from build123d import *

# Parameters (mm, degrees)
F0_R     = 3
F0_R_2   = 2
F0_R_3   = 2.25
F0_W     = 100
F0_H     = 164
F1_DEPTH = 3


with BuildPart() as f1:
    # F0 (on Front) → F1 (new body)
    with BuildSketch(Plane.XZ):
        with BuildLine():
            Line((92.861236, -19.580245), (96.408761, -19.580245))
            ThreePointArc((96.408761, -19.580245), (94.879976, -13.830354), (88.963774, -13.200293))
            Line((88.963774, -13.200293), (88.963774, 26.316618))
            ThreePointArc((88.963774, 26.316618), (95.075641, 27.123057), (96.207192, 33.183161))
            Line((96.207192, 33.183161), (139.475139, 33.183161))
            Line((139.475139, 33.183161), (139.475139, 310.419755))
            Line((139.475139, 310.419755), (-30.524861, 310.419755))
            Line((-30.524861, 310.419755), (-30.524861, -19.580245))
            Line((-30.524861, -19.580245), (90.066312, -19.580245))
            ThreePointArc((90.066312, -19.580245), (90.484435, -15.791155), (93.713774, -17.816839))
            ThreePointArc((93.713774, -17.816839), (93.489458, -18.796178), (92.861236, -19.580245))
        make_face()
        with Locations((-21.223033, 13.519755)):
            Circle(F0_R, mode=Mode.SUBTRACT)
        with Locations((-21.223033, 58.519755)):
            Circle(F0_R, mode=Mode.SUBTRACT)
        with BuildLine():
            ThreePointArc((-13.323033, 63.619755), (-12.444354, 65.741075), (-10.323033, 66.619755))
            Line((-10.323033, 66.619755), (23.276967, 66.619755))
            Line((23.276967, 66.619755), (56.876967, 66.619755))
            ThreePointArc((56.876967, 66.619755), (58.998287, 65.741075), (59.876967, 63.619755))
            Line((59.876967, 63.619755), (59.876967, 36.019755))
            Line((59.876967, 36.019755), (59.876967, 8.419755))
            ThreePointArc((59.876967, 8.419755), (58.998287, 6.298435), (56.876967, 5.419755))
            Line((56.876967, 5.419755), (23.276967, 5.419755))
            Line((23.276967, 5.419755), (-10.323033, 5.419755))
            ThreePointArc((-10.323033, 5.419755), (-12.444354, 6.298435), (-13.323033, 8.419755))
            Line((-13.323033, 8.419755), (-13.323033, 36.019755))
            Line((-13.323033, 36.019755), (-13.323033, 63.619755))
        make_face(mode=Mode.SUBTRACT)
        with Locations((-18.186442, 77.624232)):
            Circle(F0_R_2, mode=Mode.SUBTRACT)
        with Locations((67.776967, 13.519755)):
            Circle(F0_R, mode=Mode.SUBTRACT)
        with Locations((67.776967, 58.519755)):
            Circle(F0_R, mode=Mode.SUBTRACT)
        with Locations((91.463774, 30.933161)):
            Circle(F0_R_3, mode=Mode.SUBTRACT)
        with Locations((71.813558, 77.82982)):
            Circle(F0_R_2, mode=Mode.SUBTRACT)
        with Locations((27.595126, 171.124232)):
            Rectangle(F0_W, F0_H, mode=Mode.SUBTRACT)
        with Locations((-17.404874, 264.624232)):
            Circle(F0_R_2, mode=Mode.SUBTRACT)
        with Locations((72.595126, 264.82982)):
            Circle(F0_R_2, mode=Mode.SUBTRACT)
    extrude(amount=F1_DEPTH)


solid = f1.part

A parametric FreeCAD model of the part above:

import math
import FreeCAD as App
import Part
import Sketcher

V = App.Vector
Q = App.Units.Quantity

doc = App.newDocument("Part")
body = doc.addObject("PartDesign::Body", "Body")

sketch1 = body.newObject("Sketcher::SketchObject", "Sketch")
sketch1.AttachmentSupport = (doc.getObject("XZ_Plane"), [""])
sketch1.MapMode = "FlatFace"
sketch1.addGeometry([
    Part.LineSegment(V(92.9, -19.6, 0), V(96.4, -19.6, 0)),
    Part.ArcOfCircle(Part.Circle(V(91.5, -17.8, 0), V(0, 0, 1), 5.2), math.radians(-20), math.radians(118)),
    Part.LineSegment(V(89, -13.2, 0), V(89, 26.3, 0)),
    Part.ArcOfCircle(Part.Circle(V(91.5, 30.9, 0), V(0, 0, 1), 5.2), math.radians(-118), math.radians(25)),
    Part.LineSegment(V(96.2, 33.2, 0), V(139.5, 33.2, 0)),
    Part.LineSegment(V(139.5, 33.2, 0), V(139.5, 310.4, 0)),
    Part.LineSegment(V(139.5, 310.4, 0), V(-30.5, 310.4, 0)),
    Part.LineSegment(V(-30.5, 310.4, 0), V(-30.5, -19.6, 0)),
    Part.LineSegment(V(-30.5, -19.6, 0), V(90.1, -19.6, 0)),
    Part.ArcOfCircle(Part.Circle(V(91.5, -17.8, 0), V(0, 0, 1), 2.3), math.radians(0), math.radians(232)),
    Part.ArcOfCircle(Part.Circle(V(91.5, -17.8, 0), V(0, 0, 1), 2.2), math.radians(-52), math.radians(0)),
    Part.Circle(V(-21.2, 13.5, 0), V(0, 0, 1), 3),
    Part.Circle(V(-21.2, 58.5, 0), V(0, 0, 1), 3),
    Part.LineSegment(V(-13.3, 8.4, 0), V(-13.3, 63.6, 0)),
    Part.ArcOfCircle(Part.Circle(V(-10.3, 63.6, 0), V(0, 0, 1), 3), math.radians(90), math.radians(180)),
    Part.LineSegment(V(-10.3, 66.6, 0), V(56.9, 66.6, 0)),
    Part.ArcOfCircle(Part.Circle(V(56.9, 63.6, 0), V(0, 0, 1), 3), math.radians(0), math.radians(90)),
    Part.LineSegment(V(59.9, 63.6, 0), V(59.9, 8.4, 0)),
    Part.ArcOfCircle(Part.Circle(V(56.9, 8.4, 0), V(0, 0, 1), 3), math.radians(-90), math.radians(0)),
    Part.LineSegment(V(56.9, 5.4, 0), V(-10.3, 5.4, 0)),
    Part.ArcOfCircle(Part.Circle(V(-10.3, 8.4, 0), V(0, 0, 1), 3), math.radians(180), math.radians(270)),
    Part.Circle(V(-18.2, 77.6, 0), V(0, 0, 1), 2),
    Part.Circle(V(67.8, 13.5, 0), V(0, 0, 1), 3),
    Part.Circle(V(91.5, 30.9, 0), V(0, 0, 1), 2.2),
    Part.Circle(V(67.8, 58.5, 0), V(0, 0, 1), 3),
    Part.Circle(V(71.8, 77.8, 0), V(0, 0, 1), 2),
    Part.LineSegment(V(77.6, 89.1, 0), V(-22.4, 89.1, 0)),
    Part.LineSegment(V(-22.4, 89.1, 0), V(-22.4, 253.1, 0)),
    Part.LineSegment(V(-22.4, 253.1, 0), V(77.6, 253.1, 0)),
    Part.LineSegment(V(77.6, 253.1, 0), V(77.6, 89.1, 0)),
    Part.Circle(V(-17.4, 264.6, 0), V(0, 0, 1), 2),
    Part.Circle(V(72.6, 264.8, 0), V(0, 0, 1), 2),
], False)
sketch1.addConstraint([
    Sketcher.Constraint("Coincident", 0, 2, 1, 1),
    Sketcher.Constraint("Coincident", 1, 2, 2, 1),
    Sketcher.Constraint("Coincident", 2, 2, 3, 1),
    Sketcher.Constraint("Coincident", 3, 2, 4, 1),
    Sketcher.Constraint("Coincident", 4, 2, 5, 1),
    Sketcher.Constraint("Coincident", 5, 2, 6, 1),
    Sketcher.Constraint("Coincident", 6, 2, 7, 1),
    Sketcher.Constraint("Coincident", 7, 2, 8, 1),
    Sketcher.Constraint("Coincident", 8, 2, 9, 2),
    Sketcher.Constraint("Tangent", 9, 1, 10, 2),
    Sketcher.Constraint("Coincident", 10, 1, 0, 1),
    Sketcher.Constraint("Tangent", 13, 2, 14, 2),
    Sketcher.Constraint("Tangent", 14, 1, 15, 1),
    Sketcher.Constraint("Tangent", 15, 2, 16, 2),
    Sketcher.Constraint("Tangent", 16, 1, 17, 1),
    Sketcher.Constraint("Tangent", 17, 2, 18, 2),
    Sketcher.Constraint("Tangent", 18, 1, 19, 1),
    Sketcher.Constraint("Tangent", 19, 2, 20, 2),
    Sketcher.Constraint("Tangent", 20, 1, 13, 1),
    Sketcher.Constraint("Coincident", 26, 2, 27, 1),
    Sketcher.Constraint("Coincident", 27, 2, 28, 1),
    Sketcher.Constraint("Coincident", 28, 2, 29, 1),
    Sketcher.Constraint("Coincident", 29, 2, 26, 1),
    Sketcher.Constraint("Horizontal", 0),
    Sketcher.Constraint("Vertical", 2),
    Sketcher.Constraint("Horizontal", 4),
    Sketcher.Constraint("Vertical", 5),
    Sketcher.Constraint("Horizontal", 6),
    Sketcher.Constraint("Vertical", 7),
    Sketcher.Constraint("Horizontal", 8),
    Sketcher.Constraint("Vertical", 13),
    Sketcher.Constraint("Horizontal", 15),
    Sketcher.Constraint("Vertical", 17),
    Sketcher.Constraint("Horizontal", 19),
    Sketcher.Constraint("Horizontal", 26),
    Sketcher.Constraint("Vertical", 27),
    Sketcher.Constraint("Horizontal", 28),
    Sketcher.Constraint("Vertical", 29),
    Sketcher.Constraint("Coincident", 9, 3, 1, 3),
    Sketcher.Constraint("Coincident", 23, 3, 3, 3),
    Sketcher.Constraint("Equal", 1, 3),
    Sketcher.Constraint("Equal", 9, 10),
    Sketcher.Constraint("Equal", 11, 12),
    Sketcher.Constraint("Equal", 12, 14),
    Sketcher.Constraint("Equal", 14, 16),
    Sketcher.Constraint("Equal", 16, 18),
    Sketcher.Constraint("Equal", 18, 20),
    Sketcher.Constraint("Equal", 20, 22),
    Sketcher.Constraint("Equal", 10, 23),
    Sketcher.Constraint("Equal", 22, 24),
    Sketcher.Constraint("Equal", 21, 25),
    Sketcher.Constraint("Equal", 25, 30),
    Sketcher.Constraint("Equal", 30, 31),
    Sketcher.Constraint("Horizontal", 11, 3, 22, 3),
    Sketcher.Constraint("Horizontal", 12, 3, 24, 3),
    Sketcher.Constraint("Horizontal", 0, 2, 7, 2),
    Sketcher.Constraint("Horizontal", 10, 3, 9, 1),
    Sketcher.Constraint("Vertical", 1, 3, 3, 3),
    Sketcher.Constraint("Vertical", 11, 3, 12, 3),
    Sketcher.Constraint("Vertical", 22, 3, 24, 3),
    Sketcher.Constraint("Diameter", 11, Q("6 mm")),
    Sketcher.Constraint("Diameter", 21, Q("4 mm")),
    Sketcher.Constraint("Diameter", 23, Q("4.5 mm")),
    Sketcher.Constraint("DistanceX", 6, 2, 6, 1, Q("170 mm")),
    Sketcher.Constraint("DistanceX", 26, 2, 26, 1, Q("100 mm")),
    Sketcher.Constraint("DistanceY", 7, 2, 7, 1, Q("330 mm")),
    Sketcher.Constraint("DistanceY", 27, 1, 27, 2, Q("164 mm")),
    Sketcher.Constraint("Radius", 1, Q("5.25 mm")),
    Sketcher.Constraint("DistanceX", 15, 1, 15, 2, Q("67.2 mm")),
    Sketcher.Constraint("DistanceY", 13, 1, 13, 2, Q("55.2 mm")),
    Sketcher.Constraint("DistanceY", 11, 3, 12, 3, Q("45 mm")),
    Sketcher.Constraint("DistanceY", 21, 3, 30, 3, Q("187 mm")),
    Sketcher.Constraint("DistanceX", 30, 3, 31, 3, Q("90 mm")),
    Sketcher.Constraint("DistanceY", 25, 3, 31, 3, Q("187 mm")),
    Sketcher.Constraint("DistanceY", 0, 2, 18, 3, Q("28.000001 mm")),
    Sketcher.Constraint("DistanceX", 27, 2, 30, 3, Q("5 mm")),
    Sketcher.Constraint("DistanceX", 12, 3, 14, 3, Q("10.899999 mm")),
    Sketcher.Constraint("DistanceY", 12, 3, 14, 3, Q("5.100001 mm")),
    Sketcher.Constraint("DistanceX", 18, 3, 22, 3, Q("10.900001 mm")),
    Sketcher.Constraint("DistanceX", 1, 2, 1, 3, Q("2.5 mm")),
    Sketcher.Constraint("DistanceY", 21, 3, 26, 2, Q("11.5 mm")),
    Sketcher.Constraint("DistanceY", 1, 3, 23, 3, Q("48.75 mm")),
    Sketcher.Constraint("DistanceY", 23, 3, 3, 2, Q("2.25 mm")),
    Sketcher.Constraint("DistanceX", 0, 1, 0, 2, Q("3.547525 mm")),
    Sketcher.Constraint("DistanceX", 4, 1, 4, 2, Q("43.267947 mm")),
    Sketcher.Constraint("DistanceY", 1, 3, -1, 1, Q("17.816839 mm")),
    Sketcher.Constraint("DistanceX", 21, 3, -1, 1, Q("18.186442 mm")),
    Sketcher.Constraint("DistanceX", -1, 1, 25, 3, Q("71.813558 mm")),
    Sketcher.Constraint("DistanceY", -1, 1, 25, 3, Q("77.82982 mm")),
    Sketcher.Constraint("DistanceY", -1, 1, 30, 3, Q("264.624232 mm")),
    Sketcher.Constraint("DistanceX", -1, 1, 0, 2, Q("96.408761 mm")),
    Sketcher.Constraint("DistanceX", 16, 3, 3, 3, Q("34.586808 mm")),
    Sketcher.Constraint("DistanceX", 21, 3, 30, 3, Q("0.781568 mm")),
])
pad1 = body.newObject("PartDesign::Pad", "Pad")
pad1.Profile = sketch1
pad1.Length = 3

doc.recompute()
